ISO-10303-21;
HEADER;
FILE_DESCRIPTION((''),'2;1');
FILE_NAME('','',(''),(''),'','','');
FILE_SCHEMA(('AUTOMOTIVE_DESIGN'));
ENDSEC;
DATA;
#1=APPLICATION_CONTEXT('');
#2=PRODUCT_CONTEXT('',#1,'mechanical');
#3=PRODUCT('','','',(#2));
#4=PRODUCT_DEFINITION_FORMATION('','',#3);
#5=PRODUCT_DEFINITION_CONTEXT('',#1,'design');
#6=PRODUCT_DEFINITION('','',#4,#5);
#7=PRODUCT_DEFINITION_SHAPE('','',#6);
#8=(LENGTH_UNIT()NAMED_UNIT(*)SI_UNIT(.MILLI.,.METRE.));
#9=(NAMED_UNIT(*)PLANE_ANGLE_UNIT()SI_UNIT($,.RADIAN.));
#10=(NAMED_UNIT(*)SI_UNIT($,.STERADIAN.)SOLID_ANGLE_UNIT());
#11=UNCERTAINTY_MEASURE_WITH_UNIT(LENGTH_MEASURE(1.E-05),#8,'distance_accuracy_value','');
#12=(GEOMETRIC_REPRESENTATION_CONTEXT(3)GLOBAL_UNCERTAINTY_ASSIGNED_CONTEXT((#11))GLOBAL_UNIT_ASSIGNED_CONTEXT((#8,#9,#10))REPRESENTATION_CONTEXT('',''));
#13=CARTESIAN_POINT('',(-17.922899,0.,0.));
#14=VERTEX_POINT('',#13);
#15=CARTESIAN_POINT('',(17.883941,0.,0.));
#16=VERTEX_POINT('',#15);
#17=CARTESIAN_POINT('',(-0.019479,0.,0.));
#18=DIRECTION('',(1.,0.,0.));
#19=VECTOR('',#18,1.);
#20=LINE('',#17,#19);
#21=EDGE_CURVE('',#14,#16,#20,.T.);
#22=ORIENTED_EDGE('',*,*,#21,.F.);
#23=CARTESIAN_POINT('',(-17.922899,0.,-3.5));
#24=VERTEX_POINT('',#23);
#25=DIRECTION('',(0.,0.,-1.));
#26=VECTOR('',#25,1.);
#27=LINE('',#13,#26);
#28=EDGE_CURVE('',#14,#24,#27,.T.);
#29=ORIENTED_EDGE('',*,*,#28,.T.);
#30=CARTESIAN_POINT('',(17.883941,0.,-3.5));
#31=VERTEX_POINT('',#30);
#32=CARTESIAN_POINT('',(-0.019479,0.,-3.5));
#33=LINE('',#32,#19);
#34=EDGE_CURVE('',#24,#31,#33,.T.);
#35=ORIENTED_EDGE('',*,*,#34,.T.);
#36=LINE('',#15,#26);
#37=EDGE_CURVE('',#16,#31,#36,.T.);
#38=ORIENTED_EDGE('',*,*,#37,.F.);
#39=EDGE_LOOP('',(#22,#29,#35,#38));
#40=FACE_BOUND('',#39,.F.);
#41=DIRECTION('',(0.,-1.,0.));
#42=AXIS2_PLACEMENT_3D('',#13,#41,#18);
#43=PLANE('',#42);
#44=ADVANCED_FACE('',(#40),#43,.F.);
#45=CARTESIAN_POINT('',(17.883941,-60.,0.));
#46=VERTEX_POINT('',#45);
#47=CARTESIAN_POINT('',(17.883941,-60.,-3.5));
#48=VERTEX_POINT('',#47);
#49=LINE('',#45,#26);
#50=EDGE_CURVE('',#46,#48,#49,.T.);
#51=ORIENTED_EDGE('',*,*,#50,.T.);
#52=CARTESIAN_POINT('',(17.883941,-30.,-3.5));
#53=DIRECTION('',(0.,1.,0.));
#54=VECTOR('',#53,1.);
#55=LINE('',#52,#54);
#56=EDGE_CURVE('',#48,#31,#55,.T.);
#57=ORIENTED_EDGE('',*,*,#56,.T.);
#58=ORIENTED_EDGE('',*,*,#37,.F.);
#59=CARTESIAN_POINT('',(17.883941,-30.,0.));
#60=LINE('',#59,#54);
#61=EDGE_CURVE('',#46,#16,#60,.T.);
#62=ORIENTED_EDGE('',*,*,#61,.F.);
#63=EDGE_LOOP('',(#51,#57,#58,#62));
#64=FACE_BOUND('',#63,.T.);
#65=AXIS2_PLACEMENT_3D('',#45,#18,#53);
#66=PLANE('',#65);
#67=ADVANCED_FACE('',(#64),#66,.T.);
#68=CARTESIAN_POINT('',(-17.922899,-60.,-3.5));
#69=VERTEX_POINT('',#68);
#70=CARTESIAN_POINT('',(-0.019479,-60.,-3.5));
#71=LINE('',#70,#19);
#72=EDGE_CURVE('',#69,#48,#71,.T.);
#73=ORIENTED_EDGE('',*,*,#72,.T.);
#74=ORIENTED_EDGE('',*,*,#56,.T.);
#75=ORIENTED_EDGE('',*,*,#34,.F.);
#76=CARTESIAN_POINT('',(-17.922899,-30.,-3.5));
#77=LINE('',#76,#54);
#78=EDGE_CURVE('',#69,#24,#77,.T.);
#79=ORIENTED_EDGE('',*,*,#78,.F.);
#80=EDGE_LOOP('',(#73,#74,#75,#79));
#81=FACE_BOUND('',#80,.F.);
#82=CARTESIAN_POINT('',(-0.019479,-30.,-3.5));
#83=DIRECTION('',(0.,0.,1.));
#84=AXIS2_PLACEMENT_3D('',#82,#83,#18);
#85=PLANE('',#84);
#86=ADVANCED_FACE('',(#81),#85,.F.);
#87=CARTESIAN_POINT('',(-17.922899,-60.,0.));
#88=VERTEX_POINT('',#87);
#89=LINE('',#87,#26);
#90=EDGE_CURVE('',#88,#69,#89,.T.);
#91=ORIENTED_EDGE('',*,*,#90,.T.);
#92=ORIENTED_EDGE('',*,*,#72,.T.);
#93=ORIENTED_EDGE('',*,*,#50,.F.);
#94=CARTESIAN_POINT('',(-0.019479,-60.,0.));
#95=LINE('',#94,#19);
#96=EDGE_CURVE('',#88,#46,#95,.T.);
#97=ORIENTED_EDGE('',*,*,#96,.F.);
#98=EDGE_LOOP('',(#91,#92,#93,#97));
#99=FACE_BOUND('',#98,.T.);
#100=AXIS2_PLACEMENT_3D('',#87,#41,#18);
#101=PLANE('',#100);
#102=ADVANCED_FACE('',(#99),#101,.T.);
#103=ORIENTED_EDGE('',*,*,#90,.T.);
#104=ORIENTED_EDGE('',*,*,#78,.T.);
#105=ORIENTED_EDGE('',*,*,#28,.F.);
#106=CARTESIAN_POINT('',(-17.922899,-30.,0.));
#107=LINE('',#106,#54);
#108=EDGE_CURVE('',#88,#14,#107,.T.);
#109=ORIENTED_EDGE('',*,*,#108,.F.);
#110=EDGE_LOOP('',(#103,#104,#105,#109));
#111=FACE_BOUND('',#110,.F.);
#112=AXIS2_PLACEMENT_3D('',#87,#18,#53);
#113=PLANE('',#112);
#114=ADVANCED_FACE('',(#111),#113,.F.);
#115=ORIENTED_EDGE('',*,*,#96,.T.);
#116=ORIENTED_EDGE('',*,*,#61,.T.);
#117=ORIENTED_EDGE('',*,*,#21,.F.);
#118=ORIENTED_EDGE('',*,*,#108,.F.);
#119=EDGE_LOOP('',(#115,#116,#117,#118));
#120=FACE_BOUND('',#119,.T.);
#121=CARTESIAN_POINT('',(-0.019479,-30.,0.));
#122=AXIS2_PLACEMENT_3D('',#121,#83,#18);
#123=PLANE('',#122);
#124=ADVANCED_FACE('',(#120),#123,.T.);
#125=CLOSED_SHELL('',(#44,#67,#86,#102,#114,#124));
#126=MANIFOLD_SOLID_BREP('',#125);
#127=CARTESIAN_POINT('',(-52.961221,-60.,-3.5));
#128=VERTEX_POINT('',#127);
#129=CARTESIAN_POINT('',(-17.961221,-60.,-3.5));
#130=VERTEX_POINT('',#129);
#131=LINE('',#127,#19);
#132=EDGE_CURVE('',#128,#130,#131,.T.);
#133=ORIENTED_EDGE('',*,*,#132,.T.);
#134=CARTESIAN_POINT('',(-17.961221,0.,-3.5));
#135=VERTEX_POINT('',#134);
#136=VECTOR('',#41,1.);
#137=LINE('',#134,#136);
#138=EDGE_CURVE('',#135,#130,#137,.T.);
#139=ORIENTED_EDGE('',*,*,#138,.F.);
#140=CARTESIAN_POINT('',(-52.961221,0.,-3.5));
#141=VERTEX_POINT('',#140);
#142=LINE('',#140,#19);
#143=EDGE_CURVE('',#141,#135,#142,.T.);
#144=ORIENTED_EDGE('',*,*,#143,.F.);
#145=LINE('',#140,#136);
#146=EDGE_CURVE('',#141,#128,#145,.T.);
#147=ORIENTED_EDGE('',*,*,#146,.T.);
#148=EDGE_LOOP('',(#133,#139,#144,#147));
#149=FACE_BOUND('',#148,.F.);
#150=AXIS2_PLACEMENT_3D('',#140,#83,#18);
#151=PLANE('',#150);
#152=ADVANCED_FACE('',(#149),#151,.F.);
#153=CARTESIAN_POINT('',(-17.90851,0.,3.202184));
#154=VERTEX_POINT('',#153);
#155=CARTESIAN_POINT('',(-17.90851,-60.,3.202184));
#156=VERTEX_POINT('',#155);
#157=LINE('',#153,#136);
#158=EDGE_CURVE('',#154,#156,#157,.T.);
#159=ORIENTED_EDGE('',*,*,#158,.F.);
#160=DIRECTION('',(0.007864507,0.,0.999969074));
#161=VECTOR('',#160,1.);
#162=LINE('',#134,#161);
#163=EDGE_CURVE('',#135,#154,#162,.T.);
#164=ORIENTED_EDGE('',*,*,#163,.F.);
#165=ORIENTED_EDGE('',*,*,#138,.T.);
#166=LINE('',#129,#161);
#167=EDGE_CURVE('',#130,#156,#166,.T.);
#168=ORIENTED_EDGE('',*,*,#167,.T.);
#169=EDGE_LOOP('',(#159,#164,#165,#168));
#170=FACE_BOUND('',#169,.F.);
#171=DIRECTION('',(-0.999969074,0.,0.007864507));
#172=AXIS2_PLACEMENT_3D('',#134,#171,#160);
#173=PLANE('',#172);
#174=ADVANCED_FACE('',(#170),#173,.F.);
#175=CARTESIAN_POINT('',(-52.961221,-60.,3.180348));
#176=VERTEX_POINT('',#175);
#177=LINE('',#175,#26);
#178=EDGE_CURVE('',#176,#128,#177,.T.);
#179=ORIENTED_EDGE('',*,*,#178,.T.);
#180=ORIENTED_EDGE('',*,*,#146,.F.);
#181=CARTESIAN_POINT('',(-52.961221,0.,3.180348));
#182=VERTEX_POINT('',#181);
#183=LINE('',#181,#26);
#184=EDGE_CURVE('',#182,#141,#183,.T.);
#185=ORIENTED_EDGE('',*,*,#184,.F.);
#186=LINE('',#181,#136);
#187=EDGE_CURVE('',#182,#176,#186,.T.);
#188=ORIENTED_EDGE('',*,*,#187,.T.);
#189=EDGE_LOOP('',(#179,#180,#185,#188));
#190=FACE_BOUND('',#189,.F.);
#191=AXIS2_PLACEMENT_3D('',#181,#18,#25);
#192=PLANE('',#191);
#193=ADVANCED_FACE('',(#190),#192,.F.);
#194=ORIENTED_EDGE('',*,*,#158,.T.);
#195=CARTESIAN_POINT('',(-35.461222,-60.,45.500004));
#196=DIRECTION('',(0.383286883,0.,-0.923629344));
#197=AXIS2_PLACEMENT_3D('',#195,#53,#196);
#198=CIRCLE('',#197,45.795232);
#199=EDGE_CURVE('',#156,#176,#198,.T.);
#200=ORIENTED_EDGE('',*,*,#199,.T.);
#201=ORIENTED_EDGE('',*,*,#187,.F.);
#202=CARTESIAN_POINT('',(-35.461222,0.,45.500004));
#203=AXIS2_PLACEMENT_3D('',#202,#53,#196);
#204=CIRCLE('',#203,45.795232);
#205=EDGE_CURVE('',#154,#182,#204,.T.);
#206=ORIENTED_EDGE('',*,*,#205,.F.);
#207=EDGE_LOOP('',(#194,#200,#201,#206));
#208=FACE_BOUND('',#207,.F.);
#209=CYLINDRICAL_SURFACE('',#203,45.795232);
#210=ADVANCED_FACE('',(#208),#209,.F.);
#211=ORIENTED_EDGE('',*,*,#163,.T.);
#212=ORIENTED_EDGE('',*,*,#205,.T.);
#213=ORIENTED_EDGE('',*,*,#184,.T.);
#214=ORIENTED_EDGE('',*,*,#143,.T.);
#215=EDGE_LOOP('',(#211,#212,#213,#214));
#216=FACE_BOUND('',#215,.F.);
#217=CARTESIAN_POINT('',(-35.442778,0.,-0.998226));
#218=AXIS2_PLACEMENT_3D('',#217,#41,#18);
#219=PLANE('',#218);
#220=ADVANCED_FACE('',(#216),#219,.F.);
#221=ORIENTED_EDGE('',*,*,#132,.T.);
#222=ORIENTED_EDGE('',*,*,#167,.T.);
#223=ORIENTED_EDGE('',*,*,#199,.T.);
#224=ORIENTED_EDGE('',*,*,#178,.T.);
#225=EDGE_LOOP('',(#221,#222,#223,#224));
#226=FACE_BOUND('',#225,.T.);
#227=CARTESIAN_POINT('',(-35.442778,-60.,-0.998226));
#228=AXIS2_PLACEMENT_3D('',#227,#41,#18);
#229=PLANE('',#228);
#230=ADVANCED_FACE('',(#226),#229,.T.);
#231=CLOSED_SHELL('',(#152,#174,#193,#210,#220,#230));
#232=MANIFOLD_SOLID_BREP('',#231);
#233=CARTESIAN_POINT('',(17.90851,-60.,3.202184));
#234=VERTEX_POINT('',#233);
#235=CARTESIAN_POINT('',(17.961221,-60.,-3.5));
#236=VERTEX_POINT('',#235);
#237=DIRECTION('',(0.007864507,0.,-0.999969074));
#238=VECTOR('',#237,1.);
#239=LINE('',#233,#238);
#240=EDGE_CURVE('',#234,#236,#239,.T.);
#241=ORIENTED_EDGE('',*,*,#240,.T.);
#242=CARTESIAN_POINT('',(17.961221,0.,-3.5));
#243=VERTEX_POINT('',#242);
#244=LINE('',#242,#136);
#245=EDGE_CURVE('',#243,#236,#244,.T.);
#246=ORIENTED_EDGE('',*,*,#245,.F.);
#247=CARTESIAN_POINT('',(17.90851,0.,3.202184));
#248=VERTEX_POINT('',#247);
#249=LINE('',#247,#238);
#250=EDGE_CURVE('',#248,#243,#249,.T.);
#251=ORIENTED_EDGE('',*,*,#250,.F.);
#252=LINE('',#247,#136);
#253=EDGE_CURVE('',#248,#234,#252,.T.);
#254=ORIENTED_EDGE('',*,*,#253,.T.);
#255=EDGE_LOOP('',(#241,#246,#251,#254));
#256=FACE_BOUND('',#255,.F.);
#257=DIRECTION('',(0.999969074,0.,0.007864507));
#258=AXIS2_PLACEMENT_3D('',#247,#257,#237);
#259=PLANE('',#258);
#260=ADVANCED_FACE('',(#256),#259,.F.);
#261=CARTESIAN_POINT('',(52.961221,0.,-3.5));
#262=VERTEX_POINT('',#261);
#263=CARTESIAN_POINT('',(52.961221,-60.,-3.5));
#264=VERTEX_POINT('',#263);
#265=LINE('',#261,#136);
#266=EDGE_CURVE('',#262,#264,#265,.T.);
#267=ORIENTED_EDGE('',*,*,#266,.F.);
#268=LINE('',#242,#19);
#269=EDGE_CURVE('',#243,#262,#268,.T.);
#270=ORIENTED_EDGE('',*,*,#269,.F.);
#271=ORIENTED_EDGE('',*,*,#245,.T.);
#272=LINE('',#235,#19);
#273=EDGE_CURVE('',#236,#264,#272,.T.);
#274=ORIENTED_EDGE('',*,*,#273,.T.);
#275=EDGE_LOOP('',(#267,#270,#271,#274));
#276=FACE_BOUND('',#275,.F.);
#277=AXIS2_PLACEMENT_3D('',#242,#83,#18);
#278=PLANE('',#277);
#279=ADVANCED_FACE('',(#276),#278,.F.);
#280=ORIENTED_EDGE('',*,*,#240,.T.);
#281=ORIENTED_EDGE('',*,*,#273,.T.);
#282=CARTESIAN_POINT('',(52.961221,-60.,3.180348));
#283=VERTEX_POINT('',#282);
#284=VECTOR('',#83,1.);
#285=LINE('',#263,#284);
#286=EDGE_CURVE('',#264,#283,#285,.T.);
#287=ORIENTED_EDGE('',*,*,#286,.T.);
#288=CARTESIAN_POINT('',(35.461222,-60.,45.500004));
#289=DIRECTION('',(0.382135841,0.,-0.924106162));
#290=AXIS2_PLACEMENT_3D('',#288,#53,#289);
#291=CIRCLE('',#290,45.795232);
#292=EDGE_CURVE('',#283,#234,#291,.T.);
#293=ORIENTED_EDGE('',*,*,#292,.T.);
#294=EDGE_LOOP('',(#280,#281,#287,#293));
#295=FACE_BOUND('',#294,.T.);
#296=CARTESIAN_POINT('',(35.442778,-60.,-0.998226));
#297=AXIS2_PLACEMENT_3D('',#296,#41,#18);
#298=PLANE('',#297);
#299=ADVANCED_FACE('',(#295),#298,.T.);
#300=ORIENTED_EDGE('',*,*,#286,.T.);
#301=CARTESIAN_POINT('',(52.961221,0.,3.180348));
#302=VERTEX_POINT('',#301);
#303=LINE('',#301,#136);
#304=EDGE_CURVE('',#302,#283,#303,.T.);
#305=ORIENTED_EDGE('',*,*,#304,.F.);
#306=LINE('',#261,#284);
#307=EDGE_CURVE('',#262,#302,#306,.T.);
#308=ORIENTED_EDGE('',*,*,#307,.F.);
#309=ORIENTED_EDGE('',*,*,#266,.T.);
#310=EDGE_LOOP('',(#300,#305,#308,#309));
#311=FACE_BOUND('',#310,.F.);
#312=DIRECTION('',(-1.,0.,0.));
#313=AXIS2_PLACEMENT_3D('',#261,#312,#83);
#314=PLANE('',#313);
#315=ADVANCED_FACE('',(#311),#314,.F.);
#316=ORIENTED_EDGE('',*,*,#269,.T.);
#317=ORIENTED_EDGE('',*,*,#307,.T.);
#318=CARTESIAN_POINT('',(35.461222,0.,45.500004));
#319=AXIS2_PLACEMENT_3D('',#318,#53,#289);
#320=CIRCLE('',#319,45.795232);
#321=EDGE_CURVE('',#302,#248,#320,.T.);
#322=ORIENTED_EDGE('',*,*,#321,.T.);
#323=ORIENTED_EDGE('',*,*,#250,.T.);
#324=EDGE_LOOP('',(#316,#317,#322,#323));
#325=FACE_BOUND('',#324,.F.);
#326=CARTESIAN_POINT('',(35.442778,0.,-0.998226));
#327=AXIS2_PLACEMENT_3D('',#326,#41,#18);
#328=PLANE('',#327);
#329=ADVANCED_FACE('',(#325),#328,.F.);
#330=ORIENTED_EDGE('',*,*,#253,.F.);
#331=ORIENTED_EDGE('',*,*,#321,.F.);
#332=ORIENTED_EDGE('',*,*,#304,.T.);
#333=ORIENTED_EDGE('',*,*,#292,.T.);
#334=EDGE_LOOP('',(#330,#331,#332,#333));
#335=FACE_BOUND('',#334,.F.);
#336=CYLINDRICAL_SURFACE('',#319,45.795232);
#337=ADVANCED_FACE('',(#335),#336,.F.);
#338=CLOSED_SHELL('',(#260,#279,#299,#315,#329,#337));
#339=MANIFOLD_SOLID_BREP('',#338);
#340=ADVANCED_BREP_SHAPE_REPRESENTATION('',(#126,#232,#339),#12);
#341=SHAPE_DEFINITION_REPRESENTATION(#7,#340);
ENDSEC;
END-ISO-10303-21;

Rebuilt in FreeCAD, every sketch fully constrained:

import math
import FreeCAD as App
import Part
import Sketcher

doc = App.newDocument("Part")
body = doc.addObject("PartDesign::Body", "Body")
body.AllowCompound = True

sketch1 = body.newObject("Sketcher::SketchObject", "Sketch")
sketch1.AttachmentSupport = (doc.getObject("XZ_Plane"), [""])
sketch1.MapMode = "FlatFace"
sketch1.addGeometry([
    Part.LineSegment(App.Vector(-18, -4, 0), App.Vector(-18, 3, 0)),
    Part.ArcOfCircle(Part.Circle(App.Vector(-35, 46, 0), App.Vector(0, 0, 1), 46), math.radians(-112), math.radians(-67)),
    Part.LineSegment(App.Vector(-53, 3, 0), App.Vector(-53, -4, 0)),
    Part.LineSegment(App.Vector(-53, -4, 0), App.Vector(-18, -4, 0)),
    Part.ArcOfCircle(Part.Circle(App.Vector(35, 46, 0), App.Vector(0, 0, 1), 46), math.radians(-113), math.radians(-68)),
    Part.LineSegment(App.Vector(18, 3, 0), App.Vector(18, -4, 0)),
    Part.LineSegment(App.Vector(18, -4, 0), App.Vector(53, -4, 0)),
    Part.LineSegment(App.Vector(53, -4, 0), App.Vector(53, 3, 0)),
], False)
sketch1.addConstraint([
    Sketcher.Constraint("Coincident", 0, 2, 1, 2),
    Sketcher.Constraint("Coincident", 1, 1, 2, 1),
    Sketcher.Constraint("Coincident", 2, 2, 3, 1),
    Sketcher.Constraint("Coincident", 3, 2, 0, 1),
    Sketcher.Constraint("Coincident", 4, 1, 5, 1),
    Sketcher.Constraint("Coincident", 5, 2, 6, 1),
    Sketcher.Constraint("Coincident", 6, 2, 7, 1),
    Sketcher.Constraint("Coincident", 7, 2, 4, 2),
    Sketcher.Constraint("Vertical", 2),
    Sketcher.Constraint("Horizontal", 3),
    Sketcher.Constraint("Horizontal", 6),
    Sketcher.Constraint("Vertical", 7),
    Sketcher.Constraint("Equal", 1, 4),
    Sketcher.Constraint("Symmetric", 1, 3, 4, 3, -2),
    Sketcher.Constraint("Symmetric", 3, 2, 5, 2, -2),
    Sketcher.Constraint("Horizontal", 0, 2, 4, 1),
    Sketcher.Constraint("Horizontal", 1, 1, 7, 2),
    Sketcher.Constraint("DistanceX", 3, 1, 3, 2, 35.0),
    Sketcher.Constraint("DistanceY", 2, 2, -1, 1, 3.5),
    Sketcher.Constraint("DistanceX", 1, 1, 1, 3, 17.499999),
    Sketcher.Constraint("Radius", 1, 45.795232),
    Sketcher.Constraint("DistanceY", 2, 2, 2, 1, 6.680348),
    Sketcher.Constraint("Distance", 0, 6.702391),
    Sketcher.Constraint("DistanceX", 1, 3, -1, 1, 35.461222),
])
pad1 = body.newObject("PartDesign::Pad", "Pad")
pad1.Profile = sketch1
pad1.Length = 60
body2 = doc.addObject("PartDesign::Body", "Body001")

sketch2 = body2.newObject("Sketcher::SketchObject", "Sketch001")
sketch2.AttachmentSupport = (doc.getObject("XY_Plane001"), [""])
sketch2.MapMode = "FlatFace"
sketch2.addGeometry([
    Part.LineSegment(App.Vector(-18, 0, 0), App.Vector(-18, -60, 0)),
    Part.LineSegment(App.Vector(-18, -60, 0), App.Vector(18, -60, 0)),
    Part.LineSegment(App.Vector(18, -60, 0), App.Vector(18, 0, 0)),
    Part.LineSegment(App.Vector(18, 0, 0), App.Vector(-18, 0, 0)),
], False)
sketch2.addConstraint([
    Sketcher.Constraint("Coincident", 0, 2, 1, 1),
    Sketcher.Constraint("Coincident", 1, 2, 2, 1),
    Sketcher.Constraint("Coincident", 2, 2, 3, 1),
    Sketcher.Constraint("Coincident", 3, 2, 0, 1),
    Sketcher.Constraint("Vertical", 0),
    Sketcher.Constraint("Horizontal", 1),
    Sketcher.Constraint("Vertical", 2),
    Sketcher.Constraint("Horizontal", 3),
    Sketcher.Constraint("PointOnObject", 2, 2, -1),
    Sketcher.Constraint("DistanceY", 0, 2, 0, 1, 60.0),
    Sketcher.Constraint("DistanceX", 1, 1, 1, 2, 35.80684),
    Sketcher.Constraint("DistanceX", 0, 2, -1, 1, 17.922899),
])
pad2 = body2.newObject("PartDesign::Pad", "Pad001")
pad2.Profile = sketch2
pad2.Length = 3.5
pad2.Reversed = True

doc.recompute()
